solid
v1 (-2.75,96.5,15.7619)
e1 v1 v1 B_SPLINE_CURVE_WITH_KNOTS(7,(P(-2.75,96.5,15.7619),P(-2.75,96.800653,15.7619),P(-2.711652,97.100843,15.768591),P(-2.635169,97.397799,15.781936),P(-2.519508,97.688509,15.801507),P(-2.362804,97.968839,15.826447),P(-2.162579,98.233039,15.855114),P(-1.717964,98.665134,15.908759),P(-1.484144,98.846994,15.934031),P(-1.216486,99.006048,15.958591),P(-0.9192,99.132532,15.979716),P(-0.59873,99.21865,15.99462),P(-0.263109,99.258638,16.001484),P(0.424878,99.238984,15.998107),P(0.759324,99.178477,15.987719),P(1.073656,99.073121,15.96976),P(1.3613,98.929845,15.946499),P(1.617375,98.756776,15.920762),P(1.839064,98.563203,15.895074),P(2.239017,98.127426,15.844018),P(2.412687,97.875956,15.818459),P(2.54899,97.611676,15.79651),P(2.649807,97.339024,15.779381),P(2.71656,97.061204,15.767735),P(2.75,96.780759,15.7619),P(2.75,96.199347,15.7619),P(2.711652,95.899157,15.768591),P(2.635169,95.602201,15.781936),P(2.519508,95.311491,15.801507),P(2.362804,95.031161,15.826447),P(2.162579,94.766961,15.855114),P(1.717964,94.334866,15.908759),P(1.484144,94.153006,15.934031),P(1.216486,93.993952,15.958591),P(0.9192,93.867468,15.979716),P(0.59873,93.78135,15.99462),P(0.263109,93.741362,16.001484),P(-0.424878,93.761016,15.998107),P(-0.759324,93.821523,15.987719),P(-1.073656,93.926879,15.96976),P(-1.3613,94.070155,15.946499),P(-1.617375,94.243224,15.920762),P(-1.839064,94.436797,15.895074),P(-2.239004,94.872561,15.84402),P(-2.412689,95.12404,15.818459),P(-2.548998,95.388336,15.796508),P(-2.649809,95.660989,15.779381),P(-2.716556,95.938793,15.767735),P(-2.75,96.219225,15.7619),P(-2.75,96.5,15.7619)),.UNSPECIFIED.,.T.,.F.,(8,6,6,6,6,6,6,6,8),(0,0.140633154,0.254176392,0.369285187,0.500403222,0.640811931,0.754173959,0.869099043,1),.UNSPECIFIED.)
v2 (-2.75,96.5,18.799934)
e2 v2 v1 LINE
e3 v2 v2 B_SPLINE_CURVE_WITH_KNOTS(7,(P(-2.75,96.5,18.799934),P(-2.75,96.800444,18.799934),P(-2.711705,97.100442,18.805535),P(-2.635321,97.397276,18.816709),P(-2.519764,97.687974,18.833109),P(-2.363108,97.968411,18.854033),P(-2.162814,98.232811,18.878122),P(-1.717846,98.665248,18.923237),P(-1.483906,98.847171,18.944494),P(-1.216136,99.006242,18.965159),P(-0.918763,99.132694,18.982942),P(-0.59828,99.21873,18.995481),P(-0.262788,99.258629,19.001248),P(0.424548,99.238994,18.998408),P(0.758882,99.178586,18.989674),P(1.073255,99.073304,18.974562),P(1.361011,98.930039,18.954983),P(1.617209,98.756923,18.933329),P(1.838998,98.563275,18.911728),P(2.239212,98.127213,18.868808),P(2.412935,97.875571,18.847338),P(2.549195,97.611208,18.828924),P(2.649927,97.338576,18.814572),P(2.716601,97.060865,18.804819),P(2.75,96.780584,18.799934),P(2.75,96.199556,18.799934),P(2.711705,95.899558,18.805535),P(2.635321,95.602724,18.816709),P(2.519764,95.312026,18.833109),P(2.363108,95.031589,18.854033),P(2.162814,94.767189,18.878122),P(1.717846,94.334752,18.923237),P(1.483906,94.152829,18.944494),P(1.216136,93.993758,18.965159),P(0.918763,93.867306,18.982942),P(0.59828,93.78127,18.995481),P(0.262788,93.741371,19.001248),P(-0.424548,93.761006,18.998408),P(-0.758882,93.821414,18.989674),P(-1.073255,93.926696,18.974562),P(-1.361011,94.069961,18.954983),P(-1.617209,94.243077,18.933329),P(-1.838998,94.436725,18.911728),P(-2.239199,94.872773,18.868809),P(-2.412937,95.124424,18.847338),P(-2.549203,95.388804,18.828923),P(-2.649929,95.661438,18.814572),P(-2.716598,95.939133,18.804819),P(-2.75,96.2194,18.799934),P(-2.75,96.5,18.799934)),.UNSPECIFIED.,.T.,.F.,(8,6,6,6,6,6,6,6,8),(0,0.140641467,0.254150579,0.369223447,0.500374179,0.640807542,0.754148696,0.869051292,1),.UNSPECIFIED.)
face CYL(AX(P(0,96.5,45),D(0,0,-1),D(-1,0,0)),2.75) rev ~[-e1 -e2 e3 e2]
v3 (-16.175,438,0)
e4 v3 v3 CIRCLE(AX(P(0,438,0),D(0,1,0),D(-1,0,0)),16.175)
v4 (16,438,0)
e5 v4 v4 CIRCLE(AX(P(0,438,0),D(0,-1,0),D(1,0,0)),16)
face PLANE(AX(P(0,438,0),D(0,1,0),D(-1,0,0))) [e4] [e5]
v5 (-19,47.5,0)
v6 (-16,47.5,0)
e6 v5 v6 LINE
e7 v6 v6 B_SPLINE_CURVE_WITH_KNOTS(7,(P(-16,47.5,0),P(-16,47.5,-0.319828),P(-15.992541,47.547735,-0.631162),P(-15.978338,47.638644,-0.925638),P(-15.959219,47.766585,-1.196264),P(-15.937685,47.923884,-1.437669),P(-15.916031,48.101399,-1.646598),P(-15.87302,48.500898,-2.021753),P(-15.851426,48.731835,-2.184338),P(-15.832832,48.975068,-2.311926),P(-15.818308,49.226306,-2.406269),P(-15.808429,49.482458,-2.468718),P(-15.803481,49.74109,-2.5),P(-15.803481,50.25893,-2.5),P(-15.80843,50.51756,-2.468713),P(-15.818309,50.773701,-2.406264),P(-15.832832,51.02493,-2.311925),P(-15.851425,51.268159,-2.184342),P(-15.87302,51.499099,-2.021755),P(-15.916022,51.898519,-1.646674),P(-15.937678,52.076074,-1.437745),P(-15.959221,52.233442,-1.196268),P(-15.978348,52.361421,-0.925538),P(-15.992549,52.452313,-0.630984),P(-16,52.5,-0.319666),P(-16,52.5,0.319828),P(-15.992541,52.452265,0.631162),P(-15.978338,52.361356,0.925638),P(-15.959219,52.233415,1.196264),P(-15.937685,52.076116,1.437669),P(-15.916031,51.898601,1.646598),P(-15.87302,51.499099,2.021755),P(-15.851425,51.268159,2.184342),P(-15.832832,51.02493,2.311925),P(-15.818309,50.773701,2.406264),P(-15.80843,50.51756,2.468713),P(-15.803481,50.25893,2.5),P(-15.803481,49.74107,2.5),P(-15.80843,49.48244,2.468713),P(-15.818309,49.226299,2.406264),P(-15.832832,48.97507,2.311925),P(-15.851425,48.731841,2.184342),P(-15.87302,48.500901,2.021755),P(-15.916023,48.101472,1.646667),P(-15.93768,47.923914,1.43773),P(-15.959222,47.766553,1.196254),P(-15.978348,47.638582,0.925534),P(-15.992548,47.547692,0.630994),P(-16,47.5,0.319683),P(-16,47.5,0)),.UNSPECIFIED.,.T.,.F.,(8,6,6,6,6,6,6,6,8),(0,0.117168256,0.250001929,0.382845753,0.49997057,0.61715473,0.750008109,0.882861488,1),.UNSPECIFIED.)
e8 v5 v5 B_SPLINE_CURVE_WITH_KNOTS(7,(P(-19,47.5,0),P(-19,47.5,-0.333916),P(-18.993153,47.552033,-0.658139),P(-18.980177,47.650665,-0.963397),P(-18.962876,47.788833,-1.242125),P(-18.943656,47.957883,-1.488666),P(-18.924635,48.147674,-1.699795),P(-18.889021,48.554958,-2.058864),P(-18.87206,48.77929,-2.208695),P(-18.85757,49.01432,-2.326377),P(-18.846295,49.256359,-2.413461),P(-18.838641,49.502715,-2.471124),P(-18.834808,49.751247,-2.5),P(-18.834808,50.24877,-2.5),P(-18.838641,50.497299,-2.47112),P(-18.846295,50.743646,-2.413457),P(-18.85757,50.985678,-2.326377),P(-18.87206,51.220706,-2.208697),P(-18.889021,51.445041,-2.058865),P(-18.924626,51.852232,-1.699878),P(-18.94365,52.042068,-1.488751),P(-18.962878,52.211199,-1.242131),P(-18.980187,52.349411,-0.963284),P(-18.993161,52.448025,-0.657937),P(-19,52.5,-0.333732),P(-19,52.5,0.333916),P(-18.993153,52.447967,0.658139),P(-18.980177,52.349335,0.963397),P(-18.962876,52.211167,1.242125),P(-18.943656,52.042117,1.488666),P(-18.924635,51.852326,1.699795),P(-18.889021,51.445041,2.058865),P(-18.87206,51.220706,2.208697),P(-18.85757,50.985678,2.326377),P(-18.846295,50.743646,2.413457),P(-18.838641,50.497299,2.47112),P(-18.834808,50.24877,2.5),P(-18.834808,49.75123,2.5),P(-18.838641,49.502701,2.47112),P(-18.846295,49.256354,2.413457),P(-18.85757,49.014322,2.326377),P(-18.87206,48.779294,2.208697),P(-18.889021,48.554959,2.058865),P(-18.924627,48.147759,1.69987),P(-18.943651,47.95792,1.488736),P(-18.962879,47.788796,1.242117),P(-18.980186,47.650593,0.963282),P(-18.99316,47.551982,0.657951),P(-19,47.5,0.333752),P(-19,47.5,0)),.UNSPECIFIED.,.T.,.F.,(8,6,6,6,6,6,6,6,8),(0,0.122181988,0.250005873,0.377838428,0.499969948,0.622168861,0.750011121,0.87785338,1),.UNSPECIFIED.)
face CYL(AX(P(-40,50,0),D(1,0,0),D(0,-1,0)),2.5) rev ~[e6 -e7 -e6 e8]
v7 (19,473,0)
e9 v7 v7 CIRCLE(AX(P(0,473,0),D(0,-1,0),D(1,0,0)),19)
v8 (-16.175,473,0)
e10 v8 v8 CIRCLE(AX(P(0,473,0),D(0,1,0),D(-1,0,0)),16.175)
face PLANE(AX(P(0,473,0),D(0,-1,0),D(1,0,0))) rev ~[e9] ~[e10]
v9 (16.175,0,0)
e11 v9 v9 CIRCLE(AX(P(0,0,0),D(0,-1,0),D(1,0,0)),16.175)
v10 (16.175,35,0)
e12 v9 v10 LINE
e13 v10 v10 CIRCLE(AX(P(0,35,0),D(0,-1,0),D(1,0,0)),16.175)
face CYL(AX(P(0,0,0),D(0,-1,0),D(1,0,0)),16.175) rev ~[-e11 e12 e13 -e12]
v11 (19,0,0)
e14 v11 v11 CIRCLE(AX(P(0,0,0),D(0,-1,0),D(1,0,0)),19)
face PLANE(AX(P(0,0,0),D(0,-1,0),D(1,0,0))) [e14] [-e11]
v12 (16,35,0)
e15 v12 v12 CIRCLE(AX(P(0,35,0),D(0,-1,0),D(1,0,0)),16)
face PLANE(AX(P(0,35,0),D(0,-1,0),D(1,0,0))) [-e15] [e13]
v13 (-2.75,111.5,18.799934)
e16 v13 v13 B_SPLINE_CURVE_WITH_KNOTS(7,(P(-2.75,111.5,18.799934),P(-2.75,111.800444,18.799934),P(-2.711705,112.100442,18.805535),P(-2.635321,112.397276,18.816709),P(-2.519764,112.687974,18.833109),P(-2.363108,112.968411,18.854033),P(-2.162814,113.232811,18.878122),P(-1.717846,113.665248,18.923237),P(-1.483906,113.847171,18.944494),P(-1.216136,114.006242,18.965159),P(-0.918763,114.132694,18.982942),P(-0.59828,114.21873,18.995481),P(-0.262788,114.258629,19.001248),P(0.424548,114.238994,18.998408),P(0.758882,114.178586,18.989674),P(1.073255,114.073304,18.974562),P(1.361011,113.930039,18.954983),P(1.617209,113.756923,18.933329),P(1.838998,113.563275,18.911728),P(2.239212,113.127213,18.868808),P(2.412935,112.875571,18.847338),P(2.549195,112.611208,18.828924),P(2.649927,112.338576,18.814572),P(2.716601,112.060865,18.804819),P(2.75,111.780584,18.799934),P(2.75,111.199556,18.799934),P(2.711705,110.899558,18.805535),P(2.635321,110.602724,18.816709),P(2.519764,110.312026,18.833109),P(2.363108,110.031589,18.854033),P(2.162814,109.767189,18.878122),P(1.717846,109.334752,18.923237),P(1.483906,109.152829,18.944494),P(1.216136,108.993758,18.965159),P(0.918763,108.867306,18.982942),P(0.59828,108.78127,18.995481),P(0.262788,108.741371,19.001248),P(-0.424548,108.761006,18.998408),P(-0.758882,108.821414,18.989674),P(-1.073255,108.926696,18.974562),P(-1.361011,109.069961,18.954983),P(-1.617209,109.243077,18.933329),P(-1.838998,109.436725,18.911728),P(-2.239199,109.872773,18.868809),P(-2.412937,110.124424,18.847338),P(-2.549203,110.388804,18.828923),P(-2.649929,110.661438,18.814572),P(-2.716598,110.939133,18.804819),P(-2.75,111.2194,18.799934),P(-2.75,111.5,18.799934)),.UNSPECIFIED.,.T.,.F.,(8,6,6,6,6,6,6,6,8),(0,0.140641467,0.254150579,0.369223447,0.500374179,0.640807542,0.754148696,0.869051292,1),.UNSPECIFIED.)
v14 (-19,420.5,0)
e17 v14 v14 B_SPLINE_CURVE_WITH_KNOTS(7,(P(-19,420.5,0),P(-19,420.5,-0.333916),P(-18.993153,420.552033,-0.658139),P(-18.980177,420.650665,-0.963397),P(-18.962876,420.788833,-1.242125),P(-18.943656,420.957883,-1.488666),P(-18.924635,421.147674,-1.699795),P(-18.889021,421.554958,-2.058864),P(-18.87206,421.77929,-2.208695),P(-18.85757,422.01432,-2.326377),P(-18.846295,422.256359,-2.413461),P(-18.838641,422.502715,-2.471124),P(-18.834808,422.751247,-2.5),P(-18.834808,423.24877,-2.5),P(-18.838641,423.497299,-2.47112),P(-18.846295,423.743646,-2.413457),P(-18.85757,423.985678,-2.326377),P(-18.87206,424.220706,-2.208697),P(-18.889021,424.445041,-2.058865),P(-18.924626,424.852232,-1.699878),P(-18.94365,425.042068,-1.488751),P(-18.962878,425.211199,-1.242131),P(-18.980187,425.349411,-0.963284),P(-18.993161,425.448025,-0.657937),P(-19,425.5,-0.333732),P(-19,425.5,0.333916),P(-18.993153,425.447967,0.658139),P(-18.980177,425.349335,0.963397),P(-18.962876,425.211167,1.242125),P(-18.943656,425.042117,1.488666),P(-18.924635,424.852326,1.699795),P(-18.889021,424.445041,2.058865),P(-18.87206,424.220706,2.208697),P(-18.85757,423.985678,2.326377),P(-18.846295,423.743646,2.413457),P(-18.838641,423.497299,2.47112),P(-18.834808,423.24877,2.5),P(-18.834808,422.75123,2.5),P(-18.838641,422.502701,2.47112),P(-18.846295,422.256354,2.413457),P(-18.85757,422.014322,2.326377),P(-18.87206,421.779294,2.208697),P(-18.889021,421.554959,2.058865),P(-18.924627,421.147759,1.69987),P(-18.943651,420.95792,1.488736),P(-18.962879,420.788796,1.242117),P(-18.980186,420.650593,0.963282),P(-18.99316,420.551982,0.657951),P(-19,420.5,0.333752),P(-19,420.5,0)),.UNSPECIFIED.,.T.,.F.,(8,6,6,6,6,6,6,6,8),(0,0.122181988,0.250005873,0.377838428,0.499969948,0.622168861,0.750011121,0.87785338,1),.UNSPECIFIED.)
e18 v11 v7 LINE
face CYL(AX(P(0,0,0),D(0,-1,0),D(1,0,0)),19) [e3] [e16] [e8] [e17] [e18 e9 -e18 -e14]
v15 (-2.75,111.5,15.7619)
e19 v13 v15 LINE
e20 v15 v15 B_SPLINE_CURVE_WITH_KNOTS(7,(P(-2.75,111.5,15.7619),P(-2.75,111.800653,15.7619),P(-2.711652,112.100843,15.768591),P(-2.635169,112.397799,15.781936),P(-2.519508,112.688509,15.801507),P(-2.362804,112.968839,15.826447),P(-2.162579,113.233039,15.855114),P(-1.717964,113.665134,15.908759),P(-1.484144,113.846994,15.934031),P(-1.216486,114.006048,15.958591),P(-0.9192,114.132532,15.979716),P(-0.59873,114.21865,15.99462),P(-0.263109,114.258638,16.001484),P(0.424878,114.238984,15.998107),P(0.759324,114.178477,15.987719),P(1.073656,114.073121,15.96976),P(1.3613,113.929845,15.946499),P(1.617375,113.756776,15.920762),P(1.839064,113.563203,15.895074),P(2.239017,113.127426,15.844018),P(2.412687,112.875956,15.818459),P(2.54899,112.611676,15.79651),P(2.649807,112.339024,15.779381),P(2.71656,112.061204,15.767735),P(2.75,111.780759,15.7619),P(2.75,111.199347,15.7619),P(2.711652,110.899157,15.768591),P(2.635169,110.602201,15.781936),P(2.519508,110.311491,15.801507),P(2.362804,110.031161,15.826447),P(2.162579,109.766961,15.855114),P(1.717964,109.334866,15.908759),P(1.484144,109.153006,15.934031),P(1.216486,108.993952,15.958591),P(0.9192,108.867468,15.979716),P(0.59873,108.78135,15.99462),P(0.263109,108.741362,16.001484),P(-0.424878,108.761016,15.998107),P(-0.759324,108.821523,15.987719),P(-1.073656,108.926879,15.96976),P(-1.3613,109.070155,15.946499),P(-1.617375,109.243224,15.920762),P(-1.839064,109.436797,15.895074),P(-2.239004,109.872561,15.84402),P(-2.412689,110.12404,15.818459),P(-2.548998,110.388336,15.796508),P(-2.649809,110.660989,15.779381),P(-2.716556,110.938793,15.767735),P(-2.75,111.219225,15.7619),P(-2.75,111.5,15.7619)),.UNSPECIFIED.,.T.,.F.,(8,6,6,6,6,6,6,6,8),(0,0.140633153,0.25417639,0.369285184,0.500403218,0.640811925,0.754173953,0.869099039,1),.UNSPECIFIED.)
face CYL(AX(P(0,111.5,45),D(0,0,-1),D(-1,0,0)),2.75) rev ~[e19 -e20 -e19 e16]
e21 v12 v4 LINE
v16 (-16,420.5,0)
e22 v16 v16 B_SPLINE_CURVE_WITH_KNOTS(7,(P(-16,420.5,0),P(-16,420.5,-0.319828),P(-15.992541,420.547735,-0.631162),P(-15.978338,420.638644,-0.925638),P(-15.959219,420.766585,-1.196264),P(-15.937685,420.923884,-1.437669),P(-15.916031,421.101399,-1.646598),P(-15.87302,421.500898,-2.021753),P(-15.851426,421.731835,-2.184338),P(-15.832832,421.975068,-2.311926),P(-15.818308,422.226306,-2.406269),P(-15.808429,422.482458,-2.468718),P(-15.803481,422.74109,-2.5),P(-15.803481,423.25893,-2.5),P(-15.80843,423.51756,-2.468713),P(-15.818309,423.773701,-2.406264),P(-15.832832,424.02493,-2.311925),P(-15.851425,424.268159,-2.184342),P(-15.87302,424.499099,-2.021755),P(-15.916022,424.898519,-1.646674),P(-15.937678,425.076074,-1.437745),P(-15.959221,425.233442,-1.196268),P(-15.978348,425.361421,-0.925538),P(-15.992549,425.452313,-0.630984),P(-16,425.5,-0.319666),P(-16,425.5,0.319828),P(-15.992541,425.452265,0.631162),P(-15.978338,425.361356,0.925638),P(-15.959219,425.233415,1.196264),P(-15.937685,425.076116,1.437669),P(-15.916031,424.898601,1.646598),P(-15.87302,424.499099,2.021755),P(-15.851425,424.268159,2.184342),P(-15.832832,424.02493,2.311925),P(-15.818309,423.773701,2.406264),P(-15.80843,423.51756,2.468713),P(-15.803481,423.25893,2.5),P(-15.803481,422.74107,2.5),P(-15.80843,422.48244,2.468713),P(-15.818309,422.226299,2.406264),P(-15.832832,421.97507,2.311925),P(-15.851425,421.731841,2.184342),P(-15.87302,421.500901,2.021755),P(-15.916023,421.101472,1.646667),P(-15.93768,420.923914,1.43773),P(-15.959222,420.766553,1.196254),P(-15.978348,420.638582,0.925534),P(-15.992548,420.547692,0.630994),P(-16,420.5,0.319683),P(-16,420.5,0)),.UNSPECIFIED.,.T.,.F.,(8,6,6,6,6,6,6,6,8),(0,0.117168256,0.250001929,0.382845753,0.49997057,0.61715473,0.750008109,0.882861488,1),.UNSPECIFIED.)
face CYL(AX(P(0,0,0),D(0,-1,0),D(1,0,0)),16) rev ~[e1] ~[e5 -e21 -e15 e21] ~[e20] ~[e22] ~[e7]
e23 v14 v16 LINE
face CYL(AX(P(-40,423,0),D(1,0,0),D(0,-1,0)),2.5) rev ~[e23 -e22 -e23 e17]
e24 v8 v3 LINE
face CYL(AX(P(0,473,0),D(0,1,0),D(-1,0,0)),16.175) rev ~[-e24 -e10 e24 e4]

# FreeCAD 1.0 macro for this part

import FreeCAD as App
import Part
import Sketcher
Q = App.Units.Quantity

doc = App.newDocument("Part")
body = doc.addObject("PartDesign::Body", "Body")

# Sketch on XZ plane
sketch1 = body.newObject("Sketcher::SketchObject", "Sketch")
sketch1.AttachmentSupport = (doc.getObject("XZ_Plane"), [""])
sketch1.MapMode = "FlatFace"
sketch1.addGeometry(Part.Circle(App.Vector(0, 0, 0), App.Vector(0, 0, 1), 19), False)
sketch1.addConstraint(Sketcher.Constraint("Coincident", 0, 3, -1, 1))
sketch1.addConstraint(Sketcher.Constraint("Diameter", 0, Q("38 mm")))
pad1 = body.newObject("PartDesign::Pad", "Pad")
pad1.Profile = sketch1
pad1.Length = 473
pad1.Reversed = True

# Sketch on XZ plane
sketch2 = body.newObject("Sketcher::SketchObject", "Sketch001")
sketch2.AttachmentSupport = (doc.getObject("XZ_Plane"), [""])
sketch2.MapMode = "FlatFace"
sketch2.addGeometry(Part.Circle(App.Vector(0, 0, 0), App.Vector(0, 0, 1), 16), False)
sketch2.addConstraint(Sketcher.Constraint("Coincident", 0, 3, -1, 1))
sketch2.addConstraint(Sketcher.Constraint("Diameter", 0, Q("32 mm")))
pocket1 = body.newObject("PartDesign::Pocket", "Pocket")
pocket1.Profile = sketch2
pocket1.Type = "ThroughAll"

# Sketch on XZ plane
sketch3 = body.newObject("Sketcher::SketchObject", "Sketch002")
sketch3.AttachmentSupport = (doc.getObject("XZ_Plane"), [""])
sketch3.MapMode = "FlatFace"
sketch3.addGeometry(Part.Circle(App.Vector(0, 0, 0), App.Vector(0, 0, 1), 16), False)
sketch3.addConstraint(Sketcher.Constraint("Coincident", 0, 3, -1, 1))
sketch3.addConstraint(Sketcher.Constraint("Diameter", 0, Q("32.35 mm")))
pocket2 = body.newObject("PartDesign::Pocket", "Pocket001")
pocket2.Profile = sketch3
pocket2.Length = 35

# Sketch on XZ plane
sketch4 = body.newObject("Sketcher::SketchObject", "Sketch003")
sketch4.AttachmentSupport = (doc.getObject("XZ_Plane"), [""])
sketch4.MapMode = "FlatFace"
sketch4.AttachmentOffset = App.Placement(App.Vector(0, 0, -473), App.Rotation())
sketch4.addGeometry(Part.Circle(App.Vector(0, 0, 0), App.Vector(0, 0, 1), 16), False)
sketch4.addConstraint(Sketcher.Constraint("Coincident", 0, 3, -1, 1))
sketch4.addConstraint(Sketcher.Constraint("Diameter", 0, Q("32.35 mm")))
pocket3 = body.newObject("PartDesign::Pocket", "Pocket002")
pocket3.Profile = sketch4
pocket3.Length = 35
pocket3.Reversed = True

# Sketch on XY plane
sketch5 = body.newObject("Sketcher::SketchObject", "Sketch004")
sketch5.AttachmentSupport = (doc.getObject("XY_Plane"), [""])
sketch5.MapMode = "FlatFace"
sketch5.AttachmentOffset = App.Placement(App.Vector(0, 0, 25), App.Rotation())
sketch5.addGeometry(Part.Circle(App.Vector(0, 96.5, 0), App.Vector(0, 0, 1), 2.8), False)
sketch5.addGeometry(Part.Circle(App.Vector(0, 111.5, 0), App.Vector(0, 0, 1), 2.8), False)
sketch5.addConstraint(Sketcher.Constraint("Equal", 0, 1))
sketch5.addConstraint(Sketcher.Constraint("PointOnObject", 0, 3, -2))
sketch5.addConstraint(Sketcher.Constraint("PointOnObject", 1, 3, -2))
sketch5.addConstraint(Sketcher.Constraint("Diameter", 0, Q("5.5 mm")))
sketch5.addConstraint(Sketcher.Constraint("DistanceY", 0, 3, 1, 3, Q("15 mm")))
sketch5.addConstraint(Sketcher.Constraint("DistanceY", -1, 1, 0, 3, Q("96.5 mm")))
doc.recompute()
hole = body.newObject("PartDesign::Hole", "Hole")
hole.Profile = sketch5
hole.ThreadType = "None"
hole.Diameter = 5.5
hole.DepthType = "Dimension"
hole.Depth = 20
hole.DrillPoint = "Angled"
hole.DrillPointAngle = 118

# Sketch on YZ plane
sketch6 = body.newObject("Sketcher::SketchObject", "Sketch005")
sketch6.AttachmentSupport = (doc.getObject("YZ_Plane"), [""])
sketch6.MapMode = "FlatFace"
sketch6.AttachmentOffset = App.Placement(App.Vector(0, 0, -25), App.Rotation())
sketch6.addGeometry(Part.Circle(App.Vector(50, 0, 0), App.Vector(0, 0, 1), 2.5), False)
sketch6.addGeometry(Part.Circle(App.Vector(423, 0, 0), App.Vector(0, 0, 1), 2.5), False)
sketch6.addConstraint(Sketcher.Constraint("Equal", 0, 1))
sketch6.addConstraint(Sketcher.Constraint("PointOnObject", 0, 3, -1))
sketch6.addConstraint(Sketcher.Constraint("PointOnObject", 1, 3, -1))
sketch6.addConstraint(Sketcher.Constraint("Diameter", 0, Q("5 mm")))
sketch6.addConstraint(Sketcher.Constraint("DistanceX", -1, 1, 0, 3, Q("50 mm")))
sketch6.addConstraint(Sketcher.Constraint("DistanceX", -1, 1, 1, 3, Q("423 mm")))
doc.recompute()
hole2 = body.newObject("PartDesign::Hole", "Hole001")
hole2.Profile = sketch6
hole2.ThreadType = "None"
hole2.Diameter = 5
hole2.DepthType = "Dimension"
hole2.Depth = 15
hole2.DrillPoint = "Angled"
hole2.DrillPointAngle = 118
hole2.Reversed = True

doc.recompute()
